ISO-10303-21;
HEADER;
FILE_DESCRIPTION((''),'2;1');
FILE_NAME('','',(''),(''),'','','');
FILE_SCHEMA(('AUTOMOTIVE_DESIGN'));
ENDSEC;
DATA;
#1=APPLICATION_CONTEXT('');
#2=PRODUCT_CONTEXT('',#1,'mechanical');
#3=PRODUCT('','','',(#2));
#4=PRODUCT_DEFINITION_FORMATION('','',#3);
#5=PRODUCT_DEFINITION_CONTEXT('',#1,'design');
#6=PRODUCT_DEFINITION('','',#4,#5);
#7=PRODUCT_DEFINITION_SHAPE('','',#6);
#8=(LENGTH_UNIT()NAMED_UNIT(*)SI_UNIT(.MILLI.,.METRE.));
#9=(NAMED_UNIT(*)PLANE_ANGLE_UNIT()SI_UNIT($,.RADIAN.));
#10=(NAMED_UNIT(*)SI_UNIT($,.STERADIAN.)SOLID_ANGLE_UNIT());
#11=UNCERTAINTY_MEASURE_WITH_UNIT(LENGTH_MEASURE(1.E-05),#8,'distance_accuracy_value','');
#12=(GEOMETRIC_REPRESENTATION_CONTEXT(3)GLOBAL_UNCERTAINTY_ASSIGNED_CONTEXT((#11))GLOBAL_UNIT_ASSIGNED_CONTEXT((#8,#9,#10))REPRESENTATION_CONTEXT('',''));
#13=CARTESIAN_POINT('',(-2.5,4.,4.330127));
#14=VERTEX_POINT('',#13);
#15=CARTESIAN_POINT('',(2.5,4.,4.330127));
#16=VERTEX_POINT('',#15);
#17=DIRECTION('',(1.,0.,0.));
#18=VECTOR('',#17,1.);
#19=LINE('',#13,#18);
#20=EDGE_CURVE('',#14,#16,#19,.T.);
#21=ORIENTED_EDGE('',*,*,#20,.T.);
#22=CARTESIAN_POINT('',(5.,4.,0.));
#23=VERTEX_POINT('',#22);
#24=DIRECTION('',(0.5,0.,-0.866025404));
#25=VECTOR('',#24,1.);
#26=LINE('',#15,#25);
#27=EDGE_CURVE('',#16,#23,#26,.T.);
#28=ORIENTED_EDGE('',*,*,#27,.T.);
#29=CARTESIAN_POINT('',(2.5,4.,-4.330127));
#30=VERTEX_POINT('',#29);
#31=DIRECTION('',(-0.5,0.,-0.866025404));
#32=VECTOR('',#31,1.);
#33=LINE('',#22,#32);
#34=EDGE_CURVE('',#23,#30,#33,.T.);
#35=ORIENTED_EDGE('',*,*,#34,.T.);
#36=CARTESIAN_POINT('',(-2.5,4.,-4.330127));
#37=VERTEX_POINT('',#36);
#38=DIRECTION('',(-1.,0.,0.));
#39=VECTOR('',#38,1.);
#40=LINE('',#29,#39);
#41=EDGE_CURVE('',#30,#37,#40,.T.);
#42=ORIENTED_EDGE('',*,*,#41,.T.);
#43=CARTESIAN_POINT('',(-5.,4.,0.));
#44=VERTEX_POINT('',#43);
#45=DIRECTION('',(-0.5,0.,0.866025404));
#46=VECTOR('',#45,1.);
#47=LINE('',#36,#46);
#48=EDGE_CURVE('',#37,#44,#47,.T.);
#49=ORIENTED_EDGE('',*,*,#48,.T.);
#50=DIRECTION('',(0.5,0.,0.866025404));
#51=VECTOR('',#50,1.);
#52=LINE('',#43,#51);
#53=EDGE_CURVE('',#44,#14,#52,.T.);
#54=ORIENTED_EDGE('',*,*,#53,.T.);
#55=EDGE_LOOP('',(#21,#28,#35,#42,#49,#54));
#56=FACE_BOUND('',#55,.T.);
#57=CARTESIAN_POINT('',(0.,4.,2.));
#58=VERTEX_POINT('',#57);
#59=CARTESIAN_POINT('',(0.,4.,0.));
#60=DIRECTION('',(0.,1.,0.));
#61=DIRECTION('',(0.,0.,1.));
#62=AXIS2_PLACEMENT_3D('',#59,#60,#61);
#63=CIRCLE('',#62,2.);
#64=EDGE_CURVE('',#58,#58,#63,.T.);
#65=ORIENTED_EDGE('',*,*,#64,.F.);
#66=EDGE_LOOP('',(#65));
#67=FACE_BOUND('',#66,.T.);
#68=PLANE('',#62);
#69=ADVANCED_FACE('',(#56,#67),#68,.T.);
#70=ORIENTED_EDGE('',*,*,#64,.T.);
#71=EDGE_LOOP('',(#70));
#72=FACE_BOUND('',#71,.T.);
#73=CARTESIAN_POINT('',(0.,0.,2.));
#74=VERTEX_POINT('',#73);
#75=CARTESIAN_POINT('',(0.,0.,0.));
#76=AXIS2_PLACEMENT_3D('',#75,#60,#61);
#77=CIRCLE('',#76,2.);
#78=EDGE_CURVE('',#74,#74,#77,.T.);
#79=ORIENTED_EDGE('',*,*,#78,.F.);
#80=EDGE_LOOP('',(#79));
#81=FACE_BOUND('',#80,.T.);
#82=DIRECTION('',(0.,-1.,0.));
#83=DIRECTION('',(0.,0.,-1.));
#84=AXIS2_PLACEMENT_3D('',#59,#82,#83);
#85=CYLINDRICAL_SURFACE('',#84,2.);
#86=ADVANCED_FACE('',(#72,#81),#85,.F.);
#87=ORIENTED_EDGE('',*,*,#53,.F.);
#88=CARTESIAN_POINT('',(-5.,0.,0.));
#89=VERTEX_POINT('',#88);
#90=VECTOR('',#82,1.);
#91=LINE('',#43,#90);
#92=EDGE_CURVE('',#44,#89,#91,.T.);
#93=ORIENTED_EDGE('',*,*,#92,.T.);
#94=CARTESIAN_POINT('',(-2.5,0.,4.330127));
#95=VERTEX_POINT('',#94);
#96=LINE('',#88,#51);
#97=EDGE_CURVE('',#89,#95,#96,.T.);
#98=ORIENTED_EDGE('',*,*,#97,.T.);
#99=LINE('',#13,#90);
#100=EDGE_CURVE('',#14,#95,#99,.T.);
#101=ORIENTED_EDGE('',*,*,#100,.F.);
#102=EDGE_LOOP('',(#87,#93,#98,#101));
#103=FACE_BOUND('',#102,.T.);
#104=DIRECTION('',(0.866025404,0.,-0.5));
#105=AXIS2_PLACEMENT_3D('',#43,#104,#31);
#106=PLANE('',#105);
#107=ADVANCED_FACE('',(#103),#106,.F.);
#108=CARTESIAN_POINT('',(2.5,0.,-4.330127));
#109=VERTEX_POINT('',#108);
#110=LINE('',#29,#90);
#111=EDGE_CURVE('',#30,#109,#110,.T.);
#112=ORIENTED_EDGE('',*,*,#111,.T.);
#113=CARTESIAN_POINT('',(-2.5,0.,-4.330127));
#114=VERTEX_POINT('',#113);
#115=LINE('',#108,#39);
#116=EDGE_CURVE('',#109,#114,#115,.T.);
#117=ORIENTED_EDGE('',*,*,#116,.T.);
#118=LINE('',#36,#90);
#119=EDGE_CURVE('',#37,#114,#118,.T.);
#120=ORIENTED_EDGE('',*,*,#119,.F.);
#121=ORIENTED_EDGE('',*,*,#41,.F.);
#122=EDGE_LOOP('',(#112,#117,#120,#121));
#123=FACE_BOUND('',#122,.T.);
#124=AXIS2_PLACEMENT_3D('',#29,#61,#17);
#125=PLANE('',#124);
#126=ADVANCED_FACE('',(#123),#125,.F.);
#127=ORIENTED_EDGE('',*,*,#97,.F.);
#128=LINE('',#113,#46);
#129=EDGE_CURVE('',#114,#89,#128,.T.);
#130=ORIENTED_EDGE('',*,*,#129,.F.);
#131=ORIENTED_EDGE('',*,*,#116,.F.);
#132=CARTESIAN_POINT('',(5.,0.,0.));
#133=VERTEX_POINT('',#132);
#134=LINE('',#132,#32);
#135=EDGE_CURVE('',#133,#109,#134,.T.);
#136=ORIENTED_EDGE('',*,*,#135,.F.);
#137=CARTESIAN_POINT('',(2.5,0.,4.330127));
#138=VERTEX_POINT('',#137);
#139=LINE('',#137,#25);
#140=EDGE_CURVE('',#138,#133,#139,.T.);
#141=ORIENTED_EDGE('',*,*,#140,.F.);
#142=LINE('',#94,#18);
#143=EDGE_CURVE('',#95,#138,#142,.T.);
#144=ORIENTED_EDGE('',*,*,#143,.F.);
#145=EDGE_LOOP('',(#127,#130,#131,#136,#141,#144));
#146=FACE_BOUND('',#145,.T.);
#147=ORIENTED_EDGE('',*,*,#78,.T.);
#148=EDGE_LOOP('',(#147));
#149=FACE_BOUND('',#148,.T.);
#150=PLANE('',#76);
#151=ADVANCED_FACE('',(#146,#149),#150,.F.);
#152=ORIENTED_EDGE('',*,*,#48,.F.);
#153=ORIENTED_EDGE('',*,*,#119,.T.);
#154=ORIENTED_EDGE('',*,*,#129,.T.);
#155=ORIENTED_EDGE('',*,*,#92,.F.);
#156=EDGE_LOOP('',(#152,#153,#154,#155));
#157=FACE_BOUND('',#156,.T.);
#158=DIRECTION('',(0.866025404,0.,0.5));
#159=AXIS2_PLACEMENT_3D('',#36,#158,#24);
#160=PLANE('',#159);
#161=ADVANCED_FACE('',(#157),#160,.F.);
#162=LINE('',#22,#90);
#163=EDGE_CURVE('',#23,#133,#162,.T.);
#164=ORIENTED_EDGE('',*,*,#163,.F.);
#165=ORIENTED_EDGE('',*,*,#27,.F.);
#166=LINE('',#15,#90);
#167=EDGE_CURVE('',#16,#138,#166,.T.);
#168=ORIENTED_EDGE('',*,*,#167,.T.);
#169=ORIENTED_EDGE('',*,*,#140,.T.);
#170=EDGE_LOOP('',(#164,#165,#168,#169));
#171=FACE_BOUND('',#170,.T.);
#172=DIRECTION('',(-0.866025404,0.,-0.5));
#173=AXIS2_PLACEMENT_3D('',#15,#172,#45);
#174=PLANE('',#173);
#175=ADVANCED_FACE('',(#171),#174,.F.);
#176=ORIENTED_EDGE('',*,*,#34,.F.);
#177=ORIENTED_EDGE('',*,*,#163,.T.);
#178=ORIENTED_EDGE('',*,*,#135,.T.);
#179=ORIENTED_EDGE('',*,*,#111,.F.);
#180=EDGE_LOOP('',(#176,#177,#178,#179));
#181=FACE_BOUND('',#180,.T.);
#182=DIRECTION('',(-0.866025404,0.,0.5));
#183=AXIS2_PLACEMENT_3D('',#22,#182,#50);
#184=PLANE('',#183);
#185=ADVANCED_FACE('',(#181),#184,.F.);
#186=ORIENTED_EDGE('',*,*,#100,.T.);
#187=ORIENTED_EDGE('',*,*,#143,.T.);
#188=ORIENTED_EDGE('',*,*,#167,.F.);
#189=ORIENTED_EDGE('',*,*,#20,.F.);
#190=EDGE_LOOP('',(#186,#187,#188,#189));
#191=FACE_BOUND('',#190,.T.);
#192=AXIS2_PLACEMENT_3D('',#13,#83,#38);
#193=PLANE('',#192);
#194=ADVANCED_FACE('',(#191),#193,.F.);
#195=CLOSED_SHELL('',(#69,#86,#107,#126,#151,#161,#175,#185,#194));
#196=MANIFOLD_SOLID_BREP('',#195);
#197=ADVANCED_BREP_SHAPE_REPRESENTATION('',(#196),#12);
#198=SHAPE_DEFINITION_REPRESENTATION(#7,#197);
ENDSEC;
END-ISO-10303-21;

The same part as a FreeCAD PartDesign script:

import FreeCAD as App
import Part
import Sketcher
from FreeCAD import Vector
Q = App.Units.Quantity


def add_polygon(sketch, points):
    """Adds a closed chain of lines whose ends are joined by coincident constraints."""
    first, n = sketch.GeometryCount, len(points)
    for a, b in zip(points, points[1:] + points[:1]):
        sketch.addGeometry(Part.LineSegment(App.Vector(*a, 0), App.Vector(*b, 0)), False)
    for i in range(n):
        sketch.addConstraint(Sketcher.Constraint("Coincident", first + i, 2, first + (i + 1) % n, 1))

doc = App.newDocument("Part")
params = doc.addObject("Spreadsheet::Sheet", "Params")
for row, (alias, value) in enumerate([
    ("sketch1_diameter", "4 mm"),
    ("sketch1_width", "5 mm"),
    ("sketch1_length", "5 mm"),
    ("pad1_length", "4 mm"),
], start=1):
    params.set(f"A{row}", alias)
    params.set(f"B{row}", "=" + value)
    params.setAlias(f"B{row}", alias)

body = doc.addObject("PartDesign::Body", "Body")

sketch1 = body.newObject("Sketcher::SketchObject", "Sketch")
sketch1.AttachmentSupport = (doc.getObject("XZ_Plane"), [""])
sketch1.MapMode = "FlatFace"
add_polygon(sketch1, [(5, 0), (2.5, -4.3), (-2.5, -4.3), (-5, 0), (-2.5, 4.3), (2.5, 4.3)])
sketch1.addGeometry(Part.Circle(Vector(0, 0, 0), Vector(0, 0, 1), 2), False)
sketch1.addConstraint([
    Sketcher.Constraint("Horizontal", 1),
    Sketcher.Constraint("Horizontal", 4),
    Sketcher.Constraint("Coincident", 6, 3, -1, 1),
    Sketcher.Constraint("Symmetric", 0, 2, 3, 2, -1, 1),
    Sketcher.Constraint("Symmetric", 2, 2, 5, 2, -1, 1),
    Sketcher.Constraint("PointOnObject", 2, 2, -1),
    Sketcher.Constraint("Parallel", 2, 5),
    Sketcher.Constraint("Vertical", 1, 2, 3, 2),
    Sketcher.Constraint("Diameter", 6, Q("4 mm")),
    Sketcher.Constraint("DistanceX", 1, 2, 1, 1, Q("5 mm")),
    Sketcher.Constraint("Angle", 0, Q("-120 deg")),
    Sketcher.Constraint("Distance", 0, Q("5 mm")),
])
sketch1.setExpression("Constraints[14]", "Params.sketch1_diameter")
sketch1.setExpression("Constraints[15]", "Params.sketch1_width")
sketch1.setExpression("Constraints[17]", "Params.sketch1_length")
pad1 = body.newObject("PartDesign::Pad", "Pad")
pad1.Profile = sketch1
pad1.setExpression("Length", "Params.pad1_length")
pad1.Reversed = True

doc.recompute()
